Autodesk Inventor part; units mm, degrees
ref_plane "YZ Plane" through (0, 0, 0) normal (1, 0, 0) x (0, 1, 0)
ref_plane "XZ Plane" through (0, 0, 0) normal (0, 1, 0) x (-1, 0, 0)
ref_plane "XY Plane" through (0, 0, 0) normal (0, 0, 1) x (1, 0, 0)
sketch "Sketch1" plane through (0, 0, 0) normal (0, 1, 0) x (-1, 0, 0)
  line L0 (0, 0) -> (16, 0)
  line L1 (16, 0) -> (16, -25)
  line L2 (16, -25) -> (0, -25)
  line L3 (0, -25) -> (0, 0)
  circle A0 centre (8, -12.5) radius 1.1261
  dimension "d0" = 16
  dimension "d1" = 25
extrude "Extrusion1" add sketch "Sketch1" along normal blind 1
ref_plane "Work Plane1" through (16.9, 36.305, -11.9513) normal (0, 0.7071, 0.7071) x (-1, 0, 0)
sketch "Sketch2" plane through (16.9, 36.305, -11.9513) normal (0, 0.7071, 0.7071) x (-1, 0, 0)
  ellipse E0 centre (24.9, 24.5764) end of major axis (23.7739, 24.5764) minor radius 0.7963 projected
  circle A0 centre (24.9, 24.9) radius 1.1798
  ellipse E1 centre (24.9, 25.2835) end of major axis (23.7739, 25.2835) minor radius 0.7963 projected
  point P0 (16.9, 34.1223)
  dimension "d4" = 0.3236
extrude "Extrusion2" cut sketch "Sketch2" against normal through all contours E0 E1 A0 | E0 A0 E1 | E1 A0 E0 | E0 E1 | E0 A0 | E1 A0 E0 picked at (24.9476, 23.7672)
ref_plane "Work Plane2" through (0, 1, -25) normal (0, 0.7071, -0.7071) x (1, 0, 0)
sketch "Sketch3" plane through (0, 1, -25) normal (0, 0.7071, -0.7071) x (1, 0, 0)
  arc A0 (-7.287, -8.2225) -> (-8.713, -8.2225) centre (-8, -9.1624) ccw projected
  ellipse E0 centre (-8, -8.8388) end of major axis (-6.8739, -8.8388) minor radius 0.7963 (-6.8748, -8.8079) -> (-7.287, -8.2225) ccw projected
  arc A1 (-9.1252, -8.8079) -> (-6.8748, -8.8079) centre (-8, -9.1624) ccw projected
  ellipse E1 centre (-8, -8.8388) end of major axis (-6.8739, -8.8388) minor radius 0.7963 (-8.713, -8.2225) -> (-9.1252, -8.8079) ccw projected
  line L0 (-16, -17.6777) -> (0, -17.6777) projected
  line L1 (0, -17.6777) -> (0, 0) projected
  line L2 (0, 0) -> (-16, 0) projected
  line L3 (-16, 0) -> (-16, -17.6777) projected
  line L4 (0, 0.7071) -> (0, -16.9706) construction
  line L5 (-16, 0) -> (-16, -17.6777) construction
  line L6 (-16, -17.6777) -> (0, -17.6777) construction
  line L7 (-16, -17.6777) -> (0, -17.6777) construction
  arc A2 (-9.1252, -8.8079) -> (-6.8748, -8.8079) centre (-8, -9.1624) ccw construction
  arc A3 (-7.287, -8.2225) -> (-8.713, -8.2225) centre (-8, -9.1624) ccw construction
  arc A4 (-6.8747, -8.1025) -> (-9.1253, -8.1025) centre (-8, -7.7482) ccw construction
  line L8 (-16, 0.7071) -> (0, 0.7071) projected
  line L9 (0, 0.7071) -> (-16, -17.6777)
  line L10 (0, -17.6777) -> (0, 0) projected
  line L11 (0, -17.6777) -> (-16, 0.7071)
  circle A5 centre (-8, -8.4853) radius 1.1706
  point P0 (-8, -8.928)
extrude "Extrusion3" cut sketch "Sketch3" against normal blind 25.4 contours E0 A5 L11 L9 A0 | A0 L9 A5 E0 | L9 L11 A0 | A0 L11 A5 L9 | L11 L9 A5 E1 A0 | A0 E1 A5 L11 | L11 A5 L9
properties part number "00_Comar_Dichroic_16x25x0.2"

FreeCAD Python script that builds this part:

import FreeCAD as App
import Part
import Sketcher
from FreeCAD import Vector
Q = App.Units.Quantity

doc = App.newDocument("Part")
body = doc.addObject("PartDesign::Body", "Body")

# Sketch on XZ plane
sketch1 = body.newObject("Sketcher::SketchObject", "Sketch")
sketch1.AttachmentSupport = (doc.getObject("XZ_Plane"), [""])
sketch1.MapMode = "FlatFace"
sketch1.addGeometry(Part.LineSegment(Vector(-16, 0, 0), Vector(0, 0, 0)), False)
sketch1.addGeometry(Part.LineSegment(Vector(0, 0, 0), Vector(0, -25, 0)), False)
sketch1.addGeometry(Part.LineSegment(Vector(0, -25, 0), Vector(-16, -25, 0)), False)
sketch1.addGeometry(Part.LineSegment(Vector(-16, -25, 0), Vector(-16, 0, 0)), False)
sketch1.addGeometry(Part.Circle(Vector(-8, -12.5, 0), Vector(0, 0, 1), 1.1), False)
sketch1.addConstraint(Sketcher.Constraint("Coincident", 0, 2, 1, 1))
sketch1.addConstraint(Sketcher.Constraint("Coincident", 1, 2, 2, 1))
sketch1.addConstraint(Sketcher.Constraint("Coincident", 2, 2, 3, 1))
sketch1.addConstraint(Sketcher.Constraint("Coincident", 3, 2, 0, 1))
sketch1.addConstraint(Sketcher.Constraint("Horizontal", 0))
sketch1.addConstraint(Sketcher.Constraint("Vertical", 1))
sketch1.addConstraint(Sketcher.Constraint("Horizontal", 2))
sketch1.addConstraint(Sketcher.Constraint("Vertical", 3))
sketch1.addConstraint(Sketcher.Constraint("Coincident", 0, 2, -1, 1))
sketch1.addConstraint(Sketcher.Constraint("DistanceX", 0, 1, 0, 2, Q("16 mm")))
sketch1.addConstraint(Sketcher.Constraint("DistanceY", 1, 2, 1, 1, Q("25 mm")))
sketch1.addConstraint(Sketcher.Constraint("DistanceX", 4, 3, -1, 1, Q("8 mm")))
sketch1.addConstraint(Sketcher.Constraint("Diameter", 4, Q("2.2522 mm")))
sketch1.addConstraint(Sketcher.Constraint("DistanceY", 4, 3, -1, 1, Q("12.5 mm")))
pad1 = body.newObject("PartDesign::Pad", "Pad")
pad1.Profile = sketch1
pad1.Length = 1
pad1.Reversed = True

# Sketch on an angled plane
sketch2 = body.newObject("Sketcher::SketchObject", "Sketch001")
sketch2.Placement = App.Placement(Vector(16.9, 36.305, -11.9513), App.Rotation(Vector(-1, 0, 0), Vector(0, -0.707106781, 0.707106781), Vector(0, 0.707106781, 0.707106781), "ZXY"))
sketch2.addGeometry(Part.Circle(Vector(24.9, 24.9, 0), Vector(0, 0, 1), 1.2), False)
sketch2.addConstraint(Sketcher.Constraint("Diameter", 0, Q("2.3596 mm")))
sketch2.addConstraint(Sketcher.Constraint("DistanceX", -1, 1, 0, 3, Q("24.9 mm")))
sketch2.addConstraint(Sketcher.Constraint("DistanceY", -1, 1, 0, 3, Q("24.9 mm")))
pocket1 = body.newObject("PartDesign::Pocket", "Pocket")
pocket1.Profile = sketch2
pocket1.Type = "ThroughAll"

# Sketch on an angled plane
sketch3 = body.newObject("Sketcher::SketchObject", "Sketch002")
sketch3.Placement = App.Placement(Vector(0, 1, -25), App.Rotation(Vector(1, 0, 0), Vector(0, -0.707106781, -0.707106781), Vector(0, 0.707106781, -0.707106781), "ZXY"))
sketch3.addGeometry(Part.Circle(Vector(-8, -8.5, 0), Vector(0, 0, 1), 1.2), False)
sketch3.addConstraint(Sketcher.Constraint("DistanceX", 0, 3, -1, 1, Q("8 mm")))
sketch3.addConstraint(Sketcher.Constraint("Diameter", 0, Q("2.3412 mm")))
sketch3.addConstraint(Sketcher.Constraint("DistanceY", 0, 3, -1, 1, Q("8.4853 mm")))
pocket2 = body.newObject("PartDesign::Pocket", "Pocket001")
pocket2.Profile = sketch3
pocket2.Length = 25.4

doc.recompute()
